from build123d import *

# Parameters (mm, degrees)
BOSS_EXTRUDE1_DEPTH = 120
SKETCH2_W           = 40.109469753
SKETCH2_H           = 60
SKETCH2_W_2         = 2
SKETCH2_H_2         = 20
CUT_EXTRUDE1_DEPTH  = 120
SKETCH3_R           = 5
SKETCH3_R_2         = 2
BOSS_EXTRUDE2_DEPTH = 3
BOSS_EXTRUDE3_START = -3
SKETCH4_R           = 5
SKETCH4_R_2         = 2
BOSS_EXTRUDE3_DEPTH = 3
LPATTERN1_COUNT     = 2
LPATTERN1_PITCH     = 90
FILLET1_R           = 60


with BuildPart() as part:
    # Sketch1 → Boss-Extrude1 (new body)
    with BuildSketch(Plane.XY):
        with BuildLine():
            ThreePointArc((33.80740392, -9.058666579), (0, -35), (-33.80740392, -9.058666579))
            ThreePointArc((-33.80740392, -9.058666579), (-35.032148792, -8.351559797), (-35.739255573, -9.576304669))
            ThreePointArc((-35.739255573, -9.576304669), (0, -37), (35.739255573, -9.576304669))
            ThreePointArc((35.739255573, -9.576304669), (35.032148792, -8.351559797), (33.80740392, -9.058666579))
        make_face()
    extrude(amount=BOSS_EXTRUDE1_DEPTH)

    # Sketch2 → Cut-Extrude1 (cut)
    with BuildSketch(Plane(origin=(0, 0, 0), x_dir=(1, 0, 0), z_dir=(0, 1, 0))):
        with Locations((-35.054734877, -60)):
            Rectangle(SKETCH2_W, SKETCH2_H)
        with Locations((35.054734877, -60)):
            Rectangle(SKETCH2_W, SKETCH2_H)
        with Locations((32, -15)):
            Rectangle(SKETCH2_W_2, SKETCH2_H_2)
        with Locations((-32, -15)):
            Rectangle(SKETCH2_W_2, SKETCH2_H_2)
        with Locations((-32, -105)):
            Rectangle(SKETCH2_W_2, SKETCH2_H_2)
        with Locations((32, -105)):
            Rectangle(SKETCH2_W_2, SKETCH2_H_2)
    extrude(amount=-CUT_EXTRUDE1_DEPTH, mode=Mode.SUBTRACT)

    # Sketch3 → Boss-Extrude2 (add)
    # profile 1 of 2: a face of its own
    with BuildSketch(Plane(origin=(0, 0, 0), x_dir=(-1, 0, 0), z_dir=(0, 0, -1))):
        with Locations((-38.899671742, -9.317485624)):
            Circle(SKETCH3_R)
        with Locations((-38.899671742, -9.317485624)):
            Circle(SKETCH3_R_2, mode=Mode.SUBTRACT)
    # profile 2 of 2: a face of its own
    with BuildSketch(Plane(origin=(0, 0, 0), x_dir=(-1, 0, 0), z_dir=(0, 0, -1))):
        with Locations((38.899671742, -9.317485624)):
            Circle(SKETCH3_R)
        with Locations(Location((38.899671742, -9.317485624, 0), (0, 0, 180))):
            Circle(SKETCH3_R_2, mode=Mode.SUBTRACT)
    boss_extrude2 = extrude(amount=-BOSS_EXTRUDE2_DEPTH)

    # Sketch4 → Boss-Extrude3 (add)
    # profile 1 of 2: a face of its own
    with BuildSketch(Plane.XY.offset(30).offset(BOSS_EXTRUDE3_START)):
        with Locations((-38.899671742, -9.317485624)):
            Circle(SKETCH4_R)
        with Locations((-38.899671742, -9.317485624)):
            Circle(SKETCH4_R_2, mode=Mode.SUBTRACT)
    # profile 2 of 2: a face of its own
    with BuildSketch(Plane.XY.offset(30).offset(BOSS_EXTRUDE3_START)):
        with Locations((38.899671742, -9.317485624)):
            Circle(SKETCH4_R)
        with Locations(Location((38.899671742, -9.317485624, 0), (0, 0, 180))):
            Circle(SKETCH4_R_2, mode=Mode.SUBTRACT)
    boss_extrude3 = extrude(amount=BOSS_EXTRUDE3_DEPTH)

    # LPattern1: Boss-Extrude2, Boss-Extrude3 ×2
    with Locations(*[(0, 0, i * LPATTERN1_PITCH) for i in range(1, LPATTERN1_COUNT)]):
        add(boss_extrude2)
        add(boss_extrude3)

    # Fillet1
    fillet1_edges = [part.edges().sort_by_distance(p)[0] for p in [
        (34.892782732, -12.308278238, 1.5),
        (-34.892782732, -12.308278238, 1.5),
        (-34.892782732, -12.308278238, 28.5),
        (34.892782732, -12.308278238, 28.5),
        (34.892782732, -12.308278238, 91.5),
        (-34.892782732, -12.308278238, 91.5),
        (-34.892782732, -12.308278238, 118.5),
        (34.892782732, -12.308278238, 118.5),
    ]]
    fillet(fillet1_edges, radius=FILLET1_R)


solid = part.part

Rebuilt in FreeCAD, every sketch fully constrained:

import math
import FreeCAD as App
import Part
import Sketcher
from FreeCAD import Vector
Q = App.Units.Quantity


def edges_at(feature, points):
    """Names of the edges that pass closest to the given points."""
    edges = feature.Shape.Edges
    near = lambda p: min(range(len(edges)), key=lambda i: edges[i].distToShape(Part.Vertex(*p))[0])
    return sorted({f"Edge{near(p) + 1}" for p in points})

doc = App.newDocument("Part")
body = doc.addObject("PartDesign::Body", "Body")

sketch1 = body.newObject("Sketcher::SketchObject", "Sketch")
sketch1.AttachmentSupport = (doc.getObject("XY_Plane"), [""])
sketch1.MapMode = "FlatFace"
sketch1.addGeometry(Part.ArcOfCircle(Part.Circle(Vector(0, 0, 0), Vector(0, 0, 1), 35), math.radians(-165), math.radians(-15)), False)
sketch1.addGeometry(Part.ArcOfCircle(Part.Circle(Vector(-34.77333, -9.317486, 0), Vector(0, 0, 1), 1), math.radians(15), math.radians(195)), False)
sketch1.addGeometry(Part.ArcOfCircle(Part.Circle(Vector(0, 0, 0), Vector(0, 0, 1), 37), math.radians(-165), math.radians(-15)), False)
sketch1.addGeometry(Part.ArcOfCircle(Part.Circle(Vector(34.77333, -9.317486, 0), Vector(0, 0, 1), 1), math.radians(-15), math.radians(165)), False)
sketch1.addConstraint(Sketcher.Constraint("Tangent", 0, 1, 1, 1))
sketch1.addConstraint(Sketcher.Constraint("Tangent", 1, 2, 2, 1))
sketch1.addConstraint(Sketcher.Constraint("Tangent", 2, 2, 3, 1))
sketch1.addConstraint(Sketcher.Constraint("Tangent", 3, 2, 0, 2))
sketch1.addConstraint(Sketcher.Constraint("Coincident", 0, 3, -1, 1))
sketch1.addConstraint(Sketcher.Constraint("Coincident", 2, 3, -1, 1))
sketch1.addConstraint(Sketcher.Constraint("Horizontal", 1, 3, 3, 3))
sketch1.addConstraint(Sketcher.Constraint("Radius", 0, Q("35 mm")))
sketch1.addConstraint(Sketcher.Constraint("Radius", 1, Q("1 mm")))
sketch1.addConstraint(Sketcher.Constraint("DistanceX", 1, 3, -1, 1, Q("34.77333 mm")))
pad1 = body.newObject("PartDesign::Pad", "Pad")
pad1.Profile = sketch1
pad1.Length = 120

sketch2 = body.newObject("Sketcher::SketchObject", "Sketch001")
sketch2.AttachmentSupport = (doc.getObject("XZ_Plane"), [""])
sketch2.MapMode = "FlatFace"
sketch2.addGeometry(Part.LineSegment(Vector(-55.10947, 30, 0), Vector(-55.10947, 90, 0)), False)
sketch2.addGeometry(Part.LineSegment(Vector(-55.10947, 90, 0), Vector(-15, 90, 0)), False)
sketch2.addGeometry(Part.LineSegment(Vector(-15, 90, 0), Vector(-15, 30, 0)), False)
sketch2.addGeometry(Part.LineSegment(Vector(-15, 30, 0), Vector(-55.10947, 30, 0)), False)
sketch2.addGeometry(Part.LineSegment(Vector(15, 30, 0), Vector(15, 90, 0)), False)
sketch2.addGeometry(Part.LineSegment(Vector(15, 90, 0), Vector(55.10947, 90, 0)), False)
sketch2.addGeometry(Part.LineSegment(Vector(55.10947, 90, 0), Vector(55.10947, 30, 0)), False)
sketch2.addGeometry(Part.LineSegment(Vector(55.10947, 30, 0), Vector(15, 30, 0)), False)
sketch2.addGeometry(Part.LineSegment(Vector(31, 5, 0), Vector(31, 25, 0)), False)
sketch2.addGeometry(Part.LineSegment(Vector(31, 25, 0), Vector(33, 25, 0)), False)
sketch2.addGeometry(Part.LineSegment(Vector(33, 25, 0), Vector(33, 5, 0)), False)
sketch2.addGeometry(Part.LineSegment(Vector(33, 5, 0), Vector(31, 5, 0)), False)
sketch2.addGeometry(Part.LineSegment(Vector(-33, 5, 0), Vector(-33, 25, 0)), False)
sketch2.addGeometry(Part.LineSegment(Vector(-33, 25, 0), Vector(-31, 25, 0)), False)
sketch2.addGeometry(Part.LineSegment(Vector(-31, 25, 0), Vector(-31, 5, 0)), False)
sketch2.addGeometry(Part.LineSegment(Vector(-31, 5, 0), Vector(-33, 5, 0)), False)
sketch2.addGeometry(Part.LineSegment(Vector(-33, 95, 0), Vector(-33, 115, 0)), False)
sketch2.addGeometry(Part.LineSegment(Vector(-33, 115, 0), Vector(-31, 115, 0)), False)
sketch2.addGeometry(Part.LineSegment(Vector(-31, 115, 0), Vector(-31, 95, 0)), False)
sketch2.addGeometry(Part.LineSegment(Vector(-31, 95, 0), Vector(-33, 95, 0)), False)
sketch2.addGeometry(Part.LineSegment(Vector(31, 95, 0), Vector(31, 115, 0)), False)
sketch2.addGeometry(Part.LineSegment(Vector(31, 115, 0), Vector(33, 115, 0)), False)
sketch2.addGeometry(Part.LineSegment(Vector(33, 115, 0), Vector(33, 95, 0)), False)
sketch2.addGeometry(Part.LineSegment(Vector(33, 95, 0), Vector(31, 95, 0)), False)
sketch2.addConstraint(Sketcher.Constraint("Coincident", 0, 2, 1, 1))
sketch2.addConstraint(Sketcher.Constraint("Coincident", 1, 2, 2, 1))
sketch2.addConstraint(Sketcher.Constraint("Coincident", 2, 2, 3, 1))
sketch2.addConstraint(Sketcher.Constraint("Coincident", 3, 2, 0, 1))
sketch2.addConstraint(Sketcher.Constraint("Coincident", 4, 2, 5, 1))
sketch2.addConstraint(Sketcher.Constraint("Coincident", 5, 2, 6, 1))
sketch2.addConstraint(Sketcher.Constraint("Coincident", 6, 2, 7, 1))
sketch2.addConstraint(Sketcher.Constraint("Coincident", 7, 2, 4, 1))
sketch2.addConstraint(Sketcher.Constraint("Coincident", 8, 2, 9, 1))
sketch2.addConstraint(Sketcher.Constraint("Coincident", 9, 2, 10, 1))
sketch2.addConstraint(Sketcher.Constraint("Coincident", 10, 2, 11, 1))
sketch2.addConstraint(Sketcher.Constraint("Coincident", 11, 2, 8, 1))
sketch2.addConstraint(Sketcher.Constraint("Coincident", 12, 2, 13, 1))
sketch2.addConstraint(Sketcher.Constraint("Coincident", 13, 2, 14, 1))
sketch2.addConstraint(Sketcher.Constraint("Coincident", 14, 2, 15, 1))
sketch2.addConstraint(Sketcher.Constraint("Coincident", 15, 2, 12, 1))
sketch2.addConstraint(Sketcher.Constraint("Coincident", 16, 2, 17, 1))
sketch2.addConstraint(Sketcher.Constraint("Coincident", 17, 2, 18, 1))
sketch2.addConstraint(Sketcher.Constraint("Coincident", 18, 2, 19, 1))
sketch2.addConstraint(Sketcher.Constraint("Coincident", 19, 2, 16, 1))
sketch2.addConstraint(Sketcher.Constraint("Coincident", 20, 2, 21, 1))
sketch2.addConstraint(Sketcher.Constraint("Coincident", 21, 2, 22, 1))
sketch2.addConstraint(Sketcher.Constraint("Coincident", 22, 2, 23, 1))
sketch2.addConstraint(Sketcher.Constraint("Coincident", 23, 2, 20, 1))
sketch2.addConstraint(Sketcher.Constraint("Vertical", 0))
sketch2.addConstraint(Sketcher.Constraint("Horizontal", 1))
sketch2.addConstraint(Sketcher.Constraint("Vertical", 2))
sketch2.addConstraint(Sketcher.Constraint("Horizontal", 3))
sketch2.addConstraint(Sketcher.Constraint("Vertical", 4))
sketch2.addConstraint(Sketcher.Constraint("Horizontal", 5))
sketch2.addConstraint(Sketcher.Constraint("Vertical", 6))
sketch2.addConstraint(Sketcher.Constraint("Horizontal", 7))
sketch2.addConstraint(Sketcher.Constraint("Vertical", 8))
sketch2.addConstraint(Sketcher.Constraint("Horizontal", 9))
sketch2.addConstraint(Sketcher.Constraint("Vertical", 10))
sketch2.addConstraint(Sketcher.Constraint("Horizontal", 11))
sketch2.addConstraint(Sketcher.Constraint("Vertical", 12))
sketch2.addConstraint(Sketcher.Constraint("Horizontal", 13))
sketch2.addConstraint(Sketcher.Constraint("Vertical", 14))
sketch2.addConstraint(Sketcher.Constraint("Horizontal", 15))
sketch2.addConstraint(Sketcher.Constraint("Vertical", 16))
sketch2.addConstraint(Sketcher.Constraint("Horizontal", 17))
sketch2.addConstraint(Sketcher.Constraint("Vertical", 18))
sketch2.addConstraint(Sketcher.Constraint("Horizontal", 19))
sketch2.addConstraint(Sketcher.Constraint("Vertical", 20))
sketch2.addConstraint(Sketcher.Constraint("Horizontal", 21))
sketch2.addConstraint(Sketcher.Constraint("Vertical", 22))
sketch2.addConstraint(Sketcher.Constraint("Horizontal", 23))
sketch2.addConstraint(Sketcher.Constraint("Symmetric", 1, 2, 4, 2, -2))
sketch2.addConstraint(Sketcher.Constraint("Symmetric", 3, 2, 6, 2, -2))
sketch2.addConstraint(Sketcher.Constraint("Symmetric", 9, 2, 12, 2, -2))
sketch2.addConstraint(Sketcher.Constraint("Symmetric", 11, 2, 14, 2, -2))
sketch2.addConstraint(Sketcher.Constraint("Symmetric", 17, 2, 20, 2, -2))
sketch2.addConstraint(Sketcher.Constraint("Symmetric", 19, 2, 22, 2, -2))
sketch2.addConstraint(Sketcher.Constraint("Vertical", 15, 2, 16, 2))
sketch2.addConstraint(Sketcher.Constraint("Vertical", 14, 2, 17, 2))
sketch2.addConstraint(Sketcher.Constraint("Equal", 14, 16))
sketch2.addConstraint(Sketcher.Constraint("DistanceX", 9, 1, 9, 2, Q("2 mm")))
sketch2.addConstraint(Sketcher.Constraint("DistanceY", 0, 1, 0, 2, Q("60 mm")))
sketch2.addConstraint(Sketcher.Constraint("DistanceY", 8, 1, 8, 2, Q("20 mm")))
sketch2.addConstraint(Sketcher.Constraint("DistanceY", -1, 1, 0, 2, Q("90 mm")))
sketch2.addConstraint(Sketcher.Constraint("DistanceX", 1, 2, -1, 1, Q("15 mm")))
sketch2.addConstraint(Sketcher.Constraint("DistanceX", -1, 1, 8, 2, Q("31 mm")))
sketch2.addConstraint(Sketcher.Constraint("DistanceY", -1, 1, 8, 2, Q("25 mm")))
sketch2.addConstraint(Sketcher.Constraint("DistanceY", -1, 1, 16, 2, Q("115 mm")))
sketch2.addConstraint(Sketcher.Constraint("DistanceX", 1, 1, 1, 2, Q("40.10947 mm")))
pocket1 = body.newObject("PartDesign::Pocket", "Pocket")
pocket1.Profile = sketch2
pocket1.Length = 120
pocket1.Reversed = True

sketch3 = body.newObject("Sketcher::SketchObject", "Sketch002")
sketch3.AttachmentSupport = (doc.getObject("XY_Plane"), [""])
sketch3.MapMode = "FlatFace"
sketch3.addGeometry(Part.Circle(Vector(38.899672, -9.317486, 0), Vector(0, 0, 1), 5), False)
sketch3.addGeometry(Part.Circle(Vector(38.899672, -9.317486, 0), Vector(0, 0, 1), 2), False)
sketch3.addGeometry(Part.Circle(Vector(-38.899672, -9.317486, 0), Vector(0, 0, 1), 5), False)
sketch3.addGeometry(Part.Circle(Vector(-38.899672, -9.317486, 0), Vector(0, 0, 1), 2), False)
sketch3.addConstraint(Sketcher.Constraint("Coincident", 1, 3, 0, 3))
sketch3.addConstraint(Sketcher.Constraint("Coincident", 3, 3, 2, 3))
sketch3.addConstraint(Sketcher.Constraint("Equal", 0, 2))
sketch3.addConstraint(Sketcher.Constraint("Equal", 1, 3))
sketch3.addConstraint(Sketcher.Constraint("Symmetric", 0, 3, 2, 3, -2))
sketch3.addConstraint(Sketcher.Constraint("Diameter", 0, Q("10 mm")))
sketch3.addConstraint(Sketcher.Constraint("Diameter", 1, Q("4 mm")))
sketch3.addConstraint(Sketcher.Constraint("DistanceX", -1, 1, 0, 3, Q("38.899672 mm")))
sketch3.addConstraint(Sketcher.Constraint("DistanceY", 0, 3, -1, 1, Q("9.317486 mm")))
pad2 = body.newObject("PartDesign::Pad", "Pad001")
pad2.Profile = sketch3
pad2.Length = 3

sketch4 = body.newObject("Sketcher::SketchObject", "Sketch003")
sketch4.AttachmentSupport = (doc.getObject("XY_Plane"), [""])
sketch4.MapMode = "FlatFace"
sketch4.AttachmentOffset = App.Placement(Vector(0, 0, 27), App.Rotation())
sketch4.addGeometry(Part.Circle(Vector(-38.899672, -9.317486, 0), Vector(0, 0, 1), 5), False)
sketch4.addGeometry(Part.Circle(Vector(-38.899672, -9.317486, 0), Vector(0, 0, 1), 2), False)
sketch4.addGeometry(Part.Circle(Vector(38.899672, -9.317486, 0), Vector(0, 0, 1), 5), False)
sketch4.addGeometry(Part.Circle(Vector(38.899672, -9.317486, 0), Vector(0, 0, 1), 2), False)
sketch4.addConstraint(Sketcher.Constraint("Coincident", 1, 3, 0, 3))
sketch4.addConstraint(Sketcher.Constraint("Coincident", 3, 3, 2, 3))
sketch4.addConstraint(Sketcher.Constraint("Equal", 0, 2))
sketch4.addConstraint(Sketcher.Constraint("Equal", 1, 3))
sketch4.addConstraint(Sketcher.Constraint("Symmetric", 0, 3, 2, 3, -2))
sketch4.addConstraint(Sketcher.Constraint("Diameter", 0, Q("10 mm")))
sketch4.addConstraint(Sketcher.Constraint("Diameter", 1, Q("4 mm")))
sketch4.addConstraint(Sketcher.Constraint("DistanceX", 0, 3, -1, 1, Q("38.899672 mm")))
sketch4.addConstraint(Sketcher.Constraint("DistanceY", 0, 3, -1, 1, Q("9.317486 mm")))
pad3 = body.newObject("PartDesign::Pad", "Pad002")
pad3.Profile = sketch4
pad3.Length = 3
doc.recompute()

linearpattern = body.newObject("PartDesign::LinearPattern", "LinearPattern")
linearpattern.Originals = [pad2, pad3]
linearpattern.Direction = (doc.getObject("Z_Axis"), [""])
linearpattern.Mode = "offset"
linearpattern.Offset = 90
linearpattern.Occurrences = 2
body.Tip = linearpattern
doc.recompute()

fillet = body.newObject("PartDesign::Fillet", "Fillet")
fillet.Base = (linearpattern, edges_at(linearpattern, [
    (34.893, -12.308, 1.5),
    (-34.893, -12.308, 1.5),
    (-34.893, -12.308, 28.5),
    (34.893, -12.308, 28.5),
    (34.893, -12.308, 91.5),
    (-34.893, -12.308, 91.5),
    (-34.893, -12.308, 118.5),
    (34.893, -12.308, 118.5),
]))
fillet.Radius = 60

doc.recompute()
